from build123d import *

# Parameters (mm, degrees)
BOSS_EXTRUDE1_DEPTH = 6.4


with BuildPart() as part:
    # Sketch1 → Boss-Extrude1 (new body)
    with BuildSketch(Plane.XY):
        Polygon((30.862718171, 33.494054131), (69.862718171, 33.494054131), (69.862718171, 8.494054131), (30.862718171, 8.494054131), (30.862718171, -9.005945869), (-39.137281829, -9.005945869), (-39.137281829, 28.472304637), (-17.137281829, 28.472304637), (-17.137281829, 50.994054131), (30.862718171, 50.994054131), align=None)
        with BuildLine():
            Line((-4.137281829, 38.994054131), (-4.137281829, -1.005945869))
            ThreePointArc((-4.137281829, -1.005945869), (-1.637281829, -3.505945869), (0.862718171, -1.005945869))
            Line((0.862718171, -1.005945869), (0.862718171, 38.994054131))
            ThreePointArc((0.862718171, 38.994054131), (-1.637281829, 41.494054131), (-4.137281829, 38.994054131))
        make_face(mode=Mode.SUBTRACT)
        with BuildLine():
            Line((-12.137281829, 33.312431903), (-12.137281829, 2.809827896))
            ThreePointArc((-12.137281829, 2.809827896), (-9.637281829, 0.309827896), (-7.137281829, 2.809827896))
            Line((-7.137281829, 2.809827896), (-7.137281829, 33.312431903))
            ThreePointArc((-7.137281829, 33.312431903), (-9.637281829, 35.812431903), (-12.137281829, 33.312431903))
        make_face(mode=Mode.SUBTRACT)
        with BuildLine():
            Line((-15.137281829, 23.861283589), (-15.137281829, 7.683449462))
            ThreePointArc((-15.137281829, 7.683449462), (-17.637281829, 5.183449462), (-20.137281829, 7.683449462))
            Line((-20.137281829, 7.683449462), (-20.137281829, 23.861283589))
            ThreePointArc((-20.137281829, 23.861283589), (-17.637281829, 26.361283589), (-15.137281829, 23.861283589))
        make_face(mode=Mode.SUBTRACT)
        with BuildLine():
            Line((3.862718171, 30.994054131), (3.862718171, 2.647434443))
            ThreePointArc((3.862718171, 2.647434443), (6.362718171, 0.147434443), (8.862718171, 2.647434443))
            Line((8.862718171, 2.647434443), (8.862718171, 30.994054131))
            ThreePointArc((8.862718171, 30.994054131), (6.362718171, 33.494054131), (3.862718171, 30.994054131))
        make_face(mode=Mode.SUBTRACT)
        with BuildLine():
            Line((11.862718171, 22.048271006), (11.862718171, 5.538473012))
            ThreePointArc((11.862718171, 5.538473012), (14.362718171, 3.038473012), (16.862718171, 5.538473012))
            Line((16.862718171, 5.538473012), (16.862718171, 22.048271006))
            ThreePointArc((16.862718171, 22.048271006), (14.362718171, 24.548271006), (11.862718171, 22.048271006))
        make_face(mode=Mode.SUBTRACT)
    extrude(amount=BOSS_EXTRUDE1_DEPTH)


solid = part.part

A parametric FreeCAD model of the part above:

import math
import FreeCAD as App
import Part
import Sketcher

doc = App.newDocument("Part")
body = doc.addObject("PartDesign::Body", "Body")

# Sketch on XY plane
sketch1 = body.newObject("Sketcher::SketchObject", "Sketch")
sketch1.AttachmentSupport = (doc.getObject("XY_Plane"), [""])
sketch1.MapMode = "FlatFace"
sketch1.addGeometry([
    Part.LineSegment(App.Vector(69.9, 33.5, 0), App.Vector(30.9, 33.5, 0)),  # 0
    Part.LineSegment(App.Vector(30.9, 33.5, 0), App.Vector(30.9, 51, 0)),  # 1
    Part.LineSegment(App.Vector(30.9, 51, 0), App.Vector(-17.1, 51, 0)),  # 2
    Part.LineSegment(App.Vector(-17.1, 51, 0), App.Vector(-17.1, 28.5, 0)),  # 3
    Part.LineSegment(App.Vector(-17.1, 28.5, 0), App.Vector(-39.1, 28.5, 0)),  # 4
    Part.LineSegment(App.Vector(-39.1, 28.5, 0), App.Vector(-39.1, -9, 0)),  # 5
    Part.LineSegment(App.Vector(-39.1, -9, 0), App.Vector(30.9, -9, 0)),  # 6
    Part.LineSegment(App.Vector(30.9, -9, 0), App.Vector(30.9, 8.5, 0)),  # 7
    Part.LineSegment(App.Vector(30.9, 8.5, 0), App.Vector(69.9, 8.5, 0)),  # 8
    Part.LineSegment(App.Vector(69.9, 8.5, 0), App.Vector(69.9, 33.5, 0)),  # 9
    Part.ArcOfCircle(Part.Circle(App.Vector(14.4, 22, 0), App.Vector(0, 0, 1), 2.5), math.radians(0), math.radians(180)),  # 10
    Part.LineSegment(App.Vector(16.9, 22, 0), App.Vector(16.9, 5.5, 0)),  # 11
    Part.ArcOfCircle(Part.Circle(App.Vector(14.4, 5.5, 0), App.Vector(0, 0, 1), 2.5), math.radians(180), math.radians(360)),  # 12
    Part.LineSegment(App.Vector(11.9, 5.5, 0), App.Vector(11.9, 22, 0)),  # 13
    Part.ArcOfCircle(Part.Circle(App.Vector(6.4, 31, 0), App.Vector(0, 0, 1), 2.5), math.radians(0), math.radians(180)),  # 14
    Part.LineSegment(App.Vector(8.9, 31, 0), App.Vector(8.9, 2.6, 0)),  # 15
    Part.ArcOfCircle(Part.Circle(App.Vector(6.4, 2.6, 0), App.Vector(0, 0, 1), 2.5), math.radians(180), math.radians(360)),  # 16
    Part.LineSegment(App.Vector(3.9, 2.6, 0), App.Vector(3.9, 31, 0)),  # 17
    Part.ArcOfCircle(Part.Circle(App.Vector(-9.6, 33.3, 0), App.Vector(0, 0, 1), 2.5), math.radians(0), math.radians(180)),  # 18
    Part.LineSegment(App.Vector(-7.1, 33.3, 0), App.Vector(-7.1, 2.8, 0)),  # 19
    Part.ArcOfCircle(Part.Circle(App.Vector(-9.6, 2.8, 0), App.Vector(0, 0, 1), 2.5), math.radians(180), math.radians(360)),  # 20
    Part.LineSegment(App.Vector(-12.1, 2.8, 0), App.Vector(-12.1, 33.3, 0)),  # 21
    Part.LineSegment(App.Vector(-15.1, 23.9, 0), App.Vector(-15.1, 7.7, 0)),  # 22
    Part.ArcOfCircle(Part.Circle(App.Vector(-17.6, 7.7, 0), App.Vector(0, 0, 1), 2.5), math.radians(180), math.radians(360)),  # 23
    Part.LineSegment(App.Vector(-20.1, 7.7, 0), App.Vector(-20.1, 23.9, 0)),  # 24
    Part.ArcOfCircle(Part.Circle(App.Vector(-17.6, 23.9, 0), App.Vector(0, 0, 1), 2.5), math.radians(0), math.radians(180)),  # 25
    Part.ArcOfCircle(Part.Circle(App.Vector(-1.6, 39, 0), App.Vector(0, 0, 1), 2.5), math.radians(0), math.radians(180)),  # 26
    Part.LineSegment(App.Vector(0.9, 39, 0), App.Vector(0.9, -1, 0)),  # 27
    Part.ArcOfCircle(Part.Circle(App.Vector(-1.6, -1, 0), App.Vector(0, 0, 1), 2.5), math.radians(180), math.radians(360)),  # 28
    Part.LineSegment(App.Vector(-4.1, -1, 0), App.Vector(-4.1, 39, 0)),  # 29
], False)
sketch1.addConstraint([
    Sketcher.Constraint("Coincident", 0, 2, 1, 1),
    Sketcher.Constraint("Coincident", 1, 2, 2, 1),
    Sketcher.Constraint("Coincident", 2, 2, 3, 1),
    Sketcher.Constraint("Coincident", 3, 2, 4, 1),
    Sketcher.Constraint("Coincident", 4, 2, 5, 1),
    Sketcher.Constraint("Coincident", 5, 2, 6, 1),
    Sketcher.Constraint("Coincident", 6, 2, 7, 1),
    Sketcher.Constraint("Coincident", 7, 2, 8, 1),
    Sketcher.Constraint("Coincident", 8, 2, 9, 1),
    Sketcher.Constraint("Coincident", 9, 2, 0, 1),
    Sketcher.Constraint("Tangent", 10, 1, 11, 1),
    Sketcher.Constraint("Tangent", 11, 2, 12, 2),
    Sketcher.Constraint("Tangent", 12, 1, 13, 1),
    Sketcher.Constraint("Tangent", 13, 2, 10, 2),
    Sketcher.Constraint("Tangent", 14, 1, 15, 1),
    Sketcher.Constraint("Tangent", 15, 2, 16, 2),
    Sketcher.Constraint("Tangent", 16, 1, 17, 1),
    Sketcher.Constraint("Tangent", 17, 2, 14, 2),
    Sketcher.Constraint("Tangent", 18, 1, 19, 1),
    Sketcher.Constraint("Tangent", 19, 2, 20, 2),
    Sketcher.Constraint("Tangent", 20, 1, 21, 1),
    Sketcher.Constraint("Tangent", 21, 2, 18, 2),
    Sketcher.Constraint("Tangent", 22, 2, 23, 2),
    Sketcher.Constraint("Tangent", 23, 1, 24, 1),
    Sketcher.Constraint("Tangent", 24, 2, 25, 2),
    Sketcher.Constraint("Tangent", 25, 1, 22, 1),
    Sketcher.Constraint("Tangent", 26, 1, 27, 1),
    Sketcher.Constraint("Tangent", 27, 2, 28, 2),
    Sketcher.Constraint("Tangent", 28, 1, 29, 1),
    Sketcher.Constraint("Tangent", 29, 2, 26, 2),
    Sketcher.Constraint("Horizontal", 0),
    Sketcher.Constraint("Vertical", 1),
    Sketcher.Constraint("Horizontal", 2),
    Sketcher.Constraint("Vertical", 3),
    Sketcher.Constraint("Horizontal", 4),
    Sketcher.Constraint("Vertical", 5),
    Sketcher.Constraint("Horizontal", 6),
    Sketcher.Constraint("Vertical", 7),
    Sketcher.Constraint("Horizontal", 8),
    Sketcher.Constraint("Vertical", 9),
    Sketcher.Constraint("Vertical", 11),
    Sketcher.Constraint("Vertical", 13),
    Sketcher.Constraint("Vertical", 15),
    Sketcher.Constraint("Vertical", 17),
    Sketcher.Constraint("Vertical", 19),
    Sketcher.Constraint("Vertical", 21),
    Sketcher.Constraint("Vertical", 22),
    Sketcher.Constraint("Vertical", 24),
    Sketcher.Constraint("Vertical", 27),
    Sketcher.Constraint("Vertical", 29),
    Sketcher.Constraint("Equal", 12, 14),
    Sketcher.Constraint("Equal", 16, 18),
    Sketcher.Constraint("Equal", 20, 23),
    Sketcher.Constraint("Equal", 25, 26),
    Sketcher.Constraint("Vertical", 1, 2, 6, 2),
    Sketcher.Constraint("Equal", 1, 7),
    Sketcher.Constraint("Radius", 10, 2.5),
    Sketcher.Constraint("DistanceX", 0, 2, 0, 1, 39.0),
    Sketcher.Constraint("DistanceX", 2, 2, 2, 1, 48.0),
    Sketcher.Constraint("DistanceX", 4, 2, 4, 1, 22.0),
    Sketcher.Constraint("DistanceY", 9, 1, 9, 2, 25.0),
    Sketcher.Constraint("DistanceY", 27, 2, 27, 1, 40.0),
    Sketcher.Constraint("DistanceY", 1, 1, 1, 2, 17.5),
    Sketcher.Constraint("DistanceX", 14, 3, 10, 3, 8.0),
    Sketcher.Constraint("DistanceX", 18, 3, 14, 3, 16.0),
    Sketcher.Constraint("DistanceX", 23, 3, 20, 3, 8.0),
    Sketcher.Constraint("DistanceX", 18, 3, 26, 3, 8.0),
    Sketcher.Constraint("DistanceY", 14, 3, 26, 3, 8.0),
    Sketcher.Constraint("DistanceY", 14, 3, 1, 2, 20.0),
    Sketcher.Constraint("DistanceX", 10, 1, 0, 2, 14.0),
    Sketcher.Constraint("DistanceY", 3, 2, 3, 1, 22.521749),
    Sketcher.Constraint("DistanceY", 15, 2, 15, 1, 28.34662),
    Sketcher.Constraint("DistanceY", 11, 2, 11, 1, 16.509798),
    Sketcher.Constraint("DistanceY", 19, 2, 19, 1, 30.502604),
    Sketcher.Constraint("DistanceY", 22, 2, 22, 1, 16.177834),
    Sketcher.Constraint("DistanceX", -1, 1, 10, 3, 14.362718),
    Sketcher.Constraint("DistanceY", -1, 1, 10, 3, 22.048271),
    Sketcher.Constraint("DistanceY", -1, 1, 18, 3, 33.312432),
    Sketcher.Constraint("DistanceY", -1, 1, 23, 3, 7.683449),
    Sketcher.Constraint("DistanceY", 12, 3, 14, 3, 25.455581),
])
pad1 = body.newObject("PartDesign::Pad", "Pad")
pad1.Profile = sketch1
pad1.Length = 6.4

doc.recompute()
